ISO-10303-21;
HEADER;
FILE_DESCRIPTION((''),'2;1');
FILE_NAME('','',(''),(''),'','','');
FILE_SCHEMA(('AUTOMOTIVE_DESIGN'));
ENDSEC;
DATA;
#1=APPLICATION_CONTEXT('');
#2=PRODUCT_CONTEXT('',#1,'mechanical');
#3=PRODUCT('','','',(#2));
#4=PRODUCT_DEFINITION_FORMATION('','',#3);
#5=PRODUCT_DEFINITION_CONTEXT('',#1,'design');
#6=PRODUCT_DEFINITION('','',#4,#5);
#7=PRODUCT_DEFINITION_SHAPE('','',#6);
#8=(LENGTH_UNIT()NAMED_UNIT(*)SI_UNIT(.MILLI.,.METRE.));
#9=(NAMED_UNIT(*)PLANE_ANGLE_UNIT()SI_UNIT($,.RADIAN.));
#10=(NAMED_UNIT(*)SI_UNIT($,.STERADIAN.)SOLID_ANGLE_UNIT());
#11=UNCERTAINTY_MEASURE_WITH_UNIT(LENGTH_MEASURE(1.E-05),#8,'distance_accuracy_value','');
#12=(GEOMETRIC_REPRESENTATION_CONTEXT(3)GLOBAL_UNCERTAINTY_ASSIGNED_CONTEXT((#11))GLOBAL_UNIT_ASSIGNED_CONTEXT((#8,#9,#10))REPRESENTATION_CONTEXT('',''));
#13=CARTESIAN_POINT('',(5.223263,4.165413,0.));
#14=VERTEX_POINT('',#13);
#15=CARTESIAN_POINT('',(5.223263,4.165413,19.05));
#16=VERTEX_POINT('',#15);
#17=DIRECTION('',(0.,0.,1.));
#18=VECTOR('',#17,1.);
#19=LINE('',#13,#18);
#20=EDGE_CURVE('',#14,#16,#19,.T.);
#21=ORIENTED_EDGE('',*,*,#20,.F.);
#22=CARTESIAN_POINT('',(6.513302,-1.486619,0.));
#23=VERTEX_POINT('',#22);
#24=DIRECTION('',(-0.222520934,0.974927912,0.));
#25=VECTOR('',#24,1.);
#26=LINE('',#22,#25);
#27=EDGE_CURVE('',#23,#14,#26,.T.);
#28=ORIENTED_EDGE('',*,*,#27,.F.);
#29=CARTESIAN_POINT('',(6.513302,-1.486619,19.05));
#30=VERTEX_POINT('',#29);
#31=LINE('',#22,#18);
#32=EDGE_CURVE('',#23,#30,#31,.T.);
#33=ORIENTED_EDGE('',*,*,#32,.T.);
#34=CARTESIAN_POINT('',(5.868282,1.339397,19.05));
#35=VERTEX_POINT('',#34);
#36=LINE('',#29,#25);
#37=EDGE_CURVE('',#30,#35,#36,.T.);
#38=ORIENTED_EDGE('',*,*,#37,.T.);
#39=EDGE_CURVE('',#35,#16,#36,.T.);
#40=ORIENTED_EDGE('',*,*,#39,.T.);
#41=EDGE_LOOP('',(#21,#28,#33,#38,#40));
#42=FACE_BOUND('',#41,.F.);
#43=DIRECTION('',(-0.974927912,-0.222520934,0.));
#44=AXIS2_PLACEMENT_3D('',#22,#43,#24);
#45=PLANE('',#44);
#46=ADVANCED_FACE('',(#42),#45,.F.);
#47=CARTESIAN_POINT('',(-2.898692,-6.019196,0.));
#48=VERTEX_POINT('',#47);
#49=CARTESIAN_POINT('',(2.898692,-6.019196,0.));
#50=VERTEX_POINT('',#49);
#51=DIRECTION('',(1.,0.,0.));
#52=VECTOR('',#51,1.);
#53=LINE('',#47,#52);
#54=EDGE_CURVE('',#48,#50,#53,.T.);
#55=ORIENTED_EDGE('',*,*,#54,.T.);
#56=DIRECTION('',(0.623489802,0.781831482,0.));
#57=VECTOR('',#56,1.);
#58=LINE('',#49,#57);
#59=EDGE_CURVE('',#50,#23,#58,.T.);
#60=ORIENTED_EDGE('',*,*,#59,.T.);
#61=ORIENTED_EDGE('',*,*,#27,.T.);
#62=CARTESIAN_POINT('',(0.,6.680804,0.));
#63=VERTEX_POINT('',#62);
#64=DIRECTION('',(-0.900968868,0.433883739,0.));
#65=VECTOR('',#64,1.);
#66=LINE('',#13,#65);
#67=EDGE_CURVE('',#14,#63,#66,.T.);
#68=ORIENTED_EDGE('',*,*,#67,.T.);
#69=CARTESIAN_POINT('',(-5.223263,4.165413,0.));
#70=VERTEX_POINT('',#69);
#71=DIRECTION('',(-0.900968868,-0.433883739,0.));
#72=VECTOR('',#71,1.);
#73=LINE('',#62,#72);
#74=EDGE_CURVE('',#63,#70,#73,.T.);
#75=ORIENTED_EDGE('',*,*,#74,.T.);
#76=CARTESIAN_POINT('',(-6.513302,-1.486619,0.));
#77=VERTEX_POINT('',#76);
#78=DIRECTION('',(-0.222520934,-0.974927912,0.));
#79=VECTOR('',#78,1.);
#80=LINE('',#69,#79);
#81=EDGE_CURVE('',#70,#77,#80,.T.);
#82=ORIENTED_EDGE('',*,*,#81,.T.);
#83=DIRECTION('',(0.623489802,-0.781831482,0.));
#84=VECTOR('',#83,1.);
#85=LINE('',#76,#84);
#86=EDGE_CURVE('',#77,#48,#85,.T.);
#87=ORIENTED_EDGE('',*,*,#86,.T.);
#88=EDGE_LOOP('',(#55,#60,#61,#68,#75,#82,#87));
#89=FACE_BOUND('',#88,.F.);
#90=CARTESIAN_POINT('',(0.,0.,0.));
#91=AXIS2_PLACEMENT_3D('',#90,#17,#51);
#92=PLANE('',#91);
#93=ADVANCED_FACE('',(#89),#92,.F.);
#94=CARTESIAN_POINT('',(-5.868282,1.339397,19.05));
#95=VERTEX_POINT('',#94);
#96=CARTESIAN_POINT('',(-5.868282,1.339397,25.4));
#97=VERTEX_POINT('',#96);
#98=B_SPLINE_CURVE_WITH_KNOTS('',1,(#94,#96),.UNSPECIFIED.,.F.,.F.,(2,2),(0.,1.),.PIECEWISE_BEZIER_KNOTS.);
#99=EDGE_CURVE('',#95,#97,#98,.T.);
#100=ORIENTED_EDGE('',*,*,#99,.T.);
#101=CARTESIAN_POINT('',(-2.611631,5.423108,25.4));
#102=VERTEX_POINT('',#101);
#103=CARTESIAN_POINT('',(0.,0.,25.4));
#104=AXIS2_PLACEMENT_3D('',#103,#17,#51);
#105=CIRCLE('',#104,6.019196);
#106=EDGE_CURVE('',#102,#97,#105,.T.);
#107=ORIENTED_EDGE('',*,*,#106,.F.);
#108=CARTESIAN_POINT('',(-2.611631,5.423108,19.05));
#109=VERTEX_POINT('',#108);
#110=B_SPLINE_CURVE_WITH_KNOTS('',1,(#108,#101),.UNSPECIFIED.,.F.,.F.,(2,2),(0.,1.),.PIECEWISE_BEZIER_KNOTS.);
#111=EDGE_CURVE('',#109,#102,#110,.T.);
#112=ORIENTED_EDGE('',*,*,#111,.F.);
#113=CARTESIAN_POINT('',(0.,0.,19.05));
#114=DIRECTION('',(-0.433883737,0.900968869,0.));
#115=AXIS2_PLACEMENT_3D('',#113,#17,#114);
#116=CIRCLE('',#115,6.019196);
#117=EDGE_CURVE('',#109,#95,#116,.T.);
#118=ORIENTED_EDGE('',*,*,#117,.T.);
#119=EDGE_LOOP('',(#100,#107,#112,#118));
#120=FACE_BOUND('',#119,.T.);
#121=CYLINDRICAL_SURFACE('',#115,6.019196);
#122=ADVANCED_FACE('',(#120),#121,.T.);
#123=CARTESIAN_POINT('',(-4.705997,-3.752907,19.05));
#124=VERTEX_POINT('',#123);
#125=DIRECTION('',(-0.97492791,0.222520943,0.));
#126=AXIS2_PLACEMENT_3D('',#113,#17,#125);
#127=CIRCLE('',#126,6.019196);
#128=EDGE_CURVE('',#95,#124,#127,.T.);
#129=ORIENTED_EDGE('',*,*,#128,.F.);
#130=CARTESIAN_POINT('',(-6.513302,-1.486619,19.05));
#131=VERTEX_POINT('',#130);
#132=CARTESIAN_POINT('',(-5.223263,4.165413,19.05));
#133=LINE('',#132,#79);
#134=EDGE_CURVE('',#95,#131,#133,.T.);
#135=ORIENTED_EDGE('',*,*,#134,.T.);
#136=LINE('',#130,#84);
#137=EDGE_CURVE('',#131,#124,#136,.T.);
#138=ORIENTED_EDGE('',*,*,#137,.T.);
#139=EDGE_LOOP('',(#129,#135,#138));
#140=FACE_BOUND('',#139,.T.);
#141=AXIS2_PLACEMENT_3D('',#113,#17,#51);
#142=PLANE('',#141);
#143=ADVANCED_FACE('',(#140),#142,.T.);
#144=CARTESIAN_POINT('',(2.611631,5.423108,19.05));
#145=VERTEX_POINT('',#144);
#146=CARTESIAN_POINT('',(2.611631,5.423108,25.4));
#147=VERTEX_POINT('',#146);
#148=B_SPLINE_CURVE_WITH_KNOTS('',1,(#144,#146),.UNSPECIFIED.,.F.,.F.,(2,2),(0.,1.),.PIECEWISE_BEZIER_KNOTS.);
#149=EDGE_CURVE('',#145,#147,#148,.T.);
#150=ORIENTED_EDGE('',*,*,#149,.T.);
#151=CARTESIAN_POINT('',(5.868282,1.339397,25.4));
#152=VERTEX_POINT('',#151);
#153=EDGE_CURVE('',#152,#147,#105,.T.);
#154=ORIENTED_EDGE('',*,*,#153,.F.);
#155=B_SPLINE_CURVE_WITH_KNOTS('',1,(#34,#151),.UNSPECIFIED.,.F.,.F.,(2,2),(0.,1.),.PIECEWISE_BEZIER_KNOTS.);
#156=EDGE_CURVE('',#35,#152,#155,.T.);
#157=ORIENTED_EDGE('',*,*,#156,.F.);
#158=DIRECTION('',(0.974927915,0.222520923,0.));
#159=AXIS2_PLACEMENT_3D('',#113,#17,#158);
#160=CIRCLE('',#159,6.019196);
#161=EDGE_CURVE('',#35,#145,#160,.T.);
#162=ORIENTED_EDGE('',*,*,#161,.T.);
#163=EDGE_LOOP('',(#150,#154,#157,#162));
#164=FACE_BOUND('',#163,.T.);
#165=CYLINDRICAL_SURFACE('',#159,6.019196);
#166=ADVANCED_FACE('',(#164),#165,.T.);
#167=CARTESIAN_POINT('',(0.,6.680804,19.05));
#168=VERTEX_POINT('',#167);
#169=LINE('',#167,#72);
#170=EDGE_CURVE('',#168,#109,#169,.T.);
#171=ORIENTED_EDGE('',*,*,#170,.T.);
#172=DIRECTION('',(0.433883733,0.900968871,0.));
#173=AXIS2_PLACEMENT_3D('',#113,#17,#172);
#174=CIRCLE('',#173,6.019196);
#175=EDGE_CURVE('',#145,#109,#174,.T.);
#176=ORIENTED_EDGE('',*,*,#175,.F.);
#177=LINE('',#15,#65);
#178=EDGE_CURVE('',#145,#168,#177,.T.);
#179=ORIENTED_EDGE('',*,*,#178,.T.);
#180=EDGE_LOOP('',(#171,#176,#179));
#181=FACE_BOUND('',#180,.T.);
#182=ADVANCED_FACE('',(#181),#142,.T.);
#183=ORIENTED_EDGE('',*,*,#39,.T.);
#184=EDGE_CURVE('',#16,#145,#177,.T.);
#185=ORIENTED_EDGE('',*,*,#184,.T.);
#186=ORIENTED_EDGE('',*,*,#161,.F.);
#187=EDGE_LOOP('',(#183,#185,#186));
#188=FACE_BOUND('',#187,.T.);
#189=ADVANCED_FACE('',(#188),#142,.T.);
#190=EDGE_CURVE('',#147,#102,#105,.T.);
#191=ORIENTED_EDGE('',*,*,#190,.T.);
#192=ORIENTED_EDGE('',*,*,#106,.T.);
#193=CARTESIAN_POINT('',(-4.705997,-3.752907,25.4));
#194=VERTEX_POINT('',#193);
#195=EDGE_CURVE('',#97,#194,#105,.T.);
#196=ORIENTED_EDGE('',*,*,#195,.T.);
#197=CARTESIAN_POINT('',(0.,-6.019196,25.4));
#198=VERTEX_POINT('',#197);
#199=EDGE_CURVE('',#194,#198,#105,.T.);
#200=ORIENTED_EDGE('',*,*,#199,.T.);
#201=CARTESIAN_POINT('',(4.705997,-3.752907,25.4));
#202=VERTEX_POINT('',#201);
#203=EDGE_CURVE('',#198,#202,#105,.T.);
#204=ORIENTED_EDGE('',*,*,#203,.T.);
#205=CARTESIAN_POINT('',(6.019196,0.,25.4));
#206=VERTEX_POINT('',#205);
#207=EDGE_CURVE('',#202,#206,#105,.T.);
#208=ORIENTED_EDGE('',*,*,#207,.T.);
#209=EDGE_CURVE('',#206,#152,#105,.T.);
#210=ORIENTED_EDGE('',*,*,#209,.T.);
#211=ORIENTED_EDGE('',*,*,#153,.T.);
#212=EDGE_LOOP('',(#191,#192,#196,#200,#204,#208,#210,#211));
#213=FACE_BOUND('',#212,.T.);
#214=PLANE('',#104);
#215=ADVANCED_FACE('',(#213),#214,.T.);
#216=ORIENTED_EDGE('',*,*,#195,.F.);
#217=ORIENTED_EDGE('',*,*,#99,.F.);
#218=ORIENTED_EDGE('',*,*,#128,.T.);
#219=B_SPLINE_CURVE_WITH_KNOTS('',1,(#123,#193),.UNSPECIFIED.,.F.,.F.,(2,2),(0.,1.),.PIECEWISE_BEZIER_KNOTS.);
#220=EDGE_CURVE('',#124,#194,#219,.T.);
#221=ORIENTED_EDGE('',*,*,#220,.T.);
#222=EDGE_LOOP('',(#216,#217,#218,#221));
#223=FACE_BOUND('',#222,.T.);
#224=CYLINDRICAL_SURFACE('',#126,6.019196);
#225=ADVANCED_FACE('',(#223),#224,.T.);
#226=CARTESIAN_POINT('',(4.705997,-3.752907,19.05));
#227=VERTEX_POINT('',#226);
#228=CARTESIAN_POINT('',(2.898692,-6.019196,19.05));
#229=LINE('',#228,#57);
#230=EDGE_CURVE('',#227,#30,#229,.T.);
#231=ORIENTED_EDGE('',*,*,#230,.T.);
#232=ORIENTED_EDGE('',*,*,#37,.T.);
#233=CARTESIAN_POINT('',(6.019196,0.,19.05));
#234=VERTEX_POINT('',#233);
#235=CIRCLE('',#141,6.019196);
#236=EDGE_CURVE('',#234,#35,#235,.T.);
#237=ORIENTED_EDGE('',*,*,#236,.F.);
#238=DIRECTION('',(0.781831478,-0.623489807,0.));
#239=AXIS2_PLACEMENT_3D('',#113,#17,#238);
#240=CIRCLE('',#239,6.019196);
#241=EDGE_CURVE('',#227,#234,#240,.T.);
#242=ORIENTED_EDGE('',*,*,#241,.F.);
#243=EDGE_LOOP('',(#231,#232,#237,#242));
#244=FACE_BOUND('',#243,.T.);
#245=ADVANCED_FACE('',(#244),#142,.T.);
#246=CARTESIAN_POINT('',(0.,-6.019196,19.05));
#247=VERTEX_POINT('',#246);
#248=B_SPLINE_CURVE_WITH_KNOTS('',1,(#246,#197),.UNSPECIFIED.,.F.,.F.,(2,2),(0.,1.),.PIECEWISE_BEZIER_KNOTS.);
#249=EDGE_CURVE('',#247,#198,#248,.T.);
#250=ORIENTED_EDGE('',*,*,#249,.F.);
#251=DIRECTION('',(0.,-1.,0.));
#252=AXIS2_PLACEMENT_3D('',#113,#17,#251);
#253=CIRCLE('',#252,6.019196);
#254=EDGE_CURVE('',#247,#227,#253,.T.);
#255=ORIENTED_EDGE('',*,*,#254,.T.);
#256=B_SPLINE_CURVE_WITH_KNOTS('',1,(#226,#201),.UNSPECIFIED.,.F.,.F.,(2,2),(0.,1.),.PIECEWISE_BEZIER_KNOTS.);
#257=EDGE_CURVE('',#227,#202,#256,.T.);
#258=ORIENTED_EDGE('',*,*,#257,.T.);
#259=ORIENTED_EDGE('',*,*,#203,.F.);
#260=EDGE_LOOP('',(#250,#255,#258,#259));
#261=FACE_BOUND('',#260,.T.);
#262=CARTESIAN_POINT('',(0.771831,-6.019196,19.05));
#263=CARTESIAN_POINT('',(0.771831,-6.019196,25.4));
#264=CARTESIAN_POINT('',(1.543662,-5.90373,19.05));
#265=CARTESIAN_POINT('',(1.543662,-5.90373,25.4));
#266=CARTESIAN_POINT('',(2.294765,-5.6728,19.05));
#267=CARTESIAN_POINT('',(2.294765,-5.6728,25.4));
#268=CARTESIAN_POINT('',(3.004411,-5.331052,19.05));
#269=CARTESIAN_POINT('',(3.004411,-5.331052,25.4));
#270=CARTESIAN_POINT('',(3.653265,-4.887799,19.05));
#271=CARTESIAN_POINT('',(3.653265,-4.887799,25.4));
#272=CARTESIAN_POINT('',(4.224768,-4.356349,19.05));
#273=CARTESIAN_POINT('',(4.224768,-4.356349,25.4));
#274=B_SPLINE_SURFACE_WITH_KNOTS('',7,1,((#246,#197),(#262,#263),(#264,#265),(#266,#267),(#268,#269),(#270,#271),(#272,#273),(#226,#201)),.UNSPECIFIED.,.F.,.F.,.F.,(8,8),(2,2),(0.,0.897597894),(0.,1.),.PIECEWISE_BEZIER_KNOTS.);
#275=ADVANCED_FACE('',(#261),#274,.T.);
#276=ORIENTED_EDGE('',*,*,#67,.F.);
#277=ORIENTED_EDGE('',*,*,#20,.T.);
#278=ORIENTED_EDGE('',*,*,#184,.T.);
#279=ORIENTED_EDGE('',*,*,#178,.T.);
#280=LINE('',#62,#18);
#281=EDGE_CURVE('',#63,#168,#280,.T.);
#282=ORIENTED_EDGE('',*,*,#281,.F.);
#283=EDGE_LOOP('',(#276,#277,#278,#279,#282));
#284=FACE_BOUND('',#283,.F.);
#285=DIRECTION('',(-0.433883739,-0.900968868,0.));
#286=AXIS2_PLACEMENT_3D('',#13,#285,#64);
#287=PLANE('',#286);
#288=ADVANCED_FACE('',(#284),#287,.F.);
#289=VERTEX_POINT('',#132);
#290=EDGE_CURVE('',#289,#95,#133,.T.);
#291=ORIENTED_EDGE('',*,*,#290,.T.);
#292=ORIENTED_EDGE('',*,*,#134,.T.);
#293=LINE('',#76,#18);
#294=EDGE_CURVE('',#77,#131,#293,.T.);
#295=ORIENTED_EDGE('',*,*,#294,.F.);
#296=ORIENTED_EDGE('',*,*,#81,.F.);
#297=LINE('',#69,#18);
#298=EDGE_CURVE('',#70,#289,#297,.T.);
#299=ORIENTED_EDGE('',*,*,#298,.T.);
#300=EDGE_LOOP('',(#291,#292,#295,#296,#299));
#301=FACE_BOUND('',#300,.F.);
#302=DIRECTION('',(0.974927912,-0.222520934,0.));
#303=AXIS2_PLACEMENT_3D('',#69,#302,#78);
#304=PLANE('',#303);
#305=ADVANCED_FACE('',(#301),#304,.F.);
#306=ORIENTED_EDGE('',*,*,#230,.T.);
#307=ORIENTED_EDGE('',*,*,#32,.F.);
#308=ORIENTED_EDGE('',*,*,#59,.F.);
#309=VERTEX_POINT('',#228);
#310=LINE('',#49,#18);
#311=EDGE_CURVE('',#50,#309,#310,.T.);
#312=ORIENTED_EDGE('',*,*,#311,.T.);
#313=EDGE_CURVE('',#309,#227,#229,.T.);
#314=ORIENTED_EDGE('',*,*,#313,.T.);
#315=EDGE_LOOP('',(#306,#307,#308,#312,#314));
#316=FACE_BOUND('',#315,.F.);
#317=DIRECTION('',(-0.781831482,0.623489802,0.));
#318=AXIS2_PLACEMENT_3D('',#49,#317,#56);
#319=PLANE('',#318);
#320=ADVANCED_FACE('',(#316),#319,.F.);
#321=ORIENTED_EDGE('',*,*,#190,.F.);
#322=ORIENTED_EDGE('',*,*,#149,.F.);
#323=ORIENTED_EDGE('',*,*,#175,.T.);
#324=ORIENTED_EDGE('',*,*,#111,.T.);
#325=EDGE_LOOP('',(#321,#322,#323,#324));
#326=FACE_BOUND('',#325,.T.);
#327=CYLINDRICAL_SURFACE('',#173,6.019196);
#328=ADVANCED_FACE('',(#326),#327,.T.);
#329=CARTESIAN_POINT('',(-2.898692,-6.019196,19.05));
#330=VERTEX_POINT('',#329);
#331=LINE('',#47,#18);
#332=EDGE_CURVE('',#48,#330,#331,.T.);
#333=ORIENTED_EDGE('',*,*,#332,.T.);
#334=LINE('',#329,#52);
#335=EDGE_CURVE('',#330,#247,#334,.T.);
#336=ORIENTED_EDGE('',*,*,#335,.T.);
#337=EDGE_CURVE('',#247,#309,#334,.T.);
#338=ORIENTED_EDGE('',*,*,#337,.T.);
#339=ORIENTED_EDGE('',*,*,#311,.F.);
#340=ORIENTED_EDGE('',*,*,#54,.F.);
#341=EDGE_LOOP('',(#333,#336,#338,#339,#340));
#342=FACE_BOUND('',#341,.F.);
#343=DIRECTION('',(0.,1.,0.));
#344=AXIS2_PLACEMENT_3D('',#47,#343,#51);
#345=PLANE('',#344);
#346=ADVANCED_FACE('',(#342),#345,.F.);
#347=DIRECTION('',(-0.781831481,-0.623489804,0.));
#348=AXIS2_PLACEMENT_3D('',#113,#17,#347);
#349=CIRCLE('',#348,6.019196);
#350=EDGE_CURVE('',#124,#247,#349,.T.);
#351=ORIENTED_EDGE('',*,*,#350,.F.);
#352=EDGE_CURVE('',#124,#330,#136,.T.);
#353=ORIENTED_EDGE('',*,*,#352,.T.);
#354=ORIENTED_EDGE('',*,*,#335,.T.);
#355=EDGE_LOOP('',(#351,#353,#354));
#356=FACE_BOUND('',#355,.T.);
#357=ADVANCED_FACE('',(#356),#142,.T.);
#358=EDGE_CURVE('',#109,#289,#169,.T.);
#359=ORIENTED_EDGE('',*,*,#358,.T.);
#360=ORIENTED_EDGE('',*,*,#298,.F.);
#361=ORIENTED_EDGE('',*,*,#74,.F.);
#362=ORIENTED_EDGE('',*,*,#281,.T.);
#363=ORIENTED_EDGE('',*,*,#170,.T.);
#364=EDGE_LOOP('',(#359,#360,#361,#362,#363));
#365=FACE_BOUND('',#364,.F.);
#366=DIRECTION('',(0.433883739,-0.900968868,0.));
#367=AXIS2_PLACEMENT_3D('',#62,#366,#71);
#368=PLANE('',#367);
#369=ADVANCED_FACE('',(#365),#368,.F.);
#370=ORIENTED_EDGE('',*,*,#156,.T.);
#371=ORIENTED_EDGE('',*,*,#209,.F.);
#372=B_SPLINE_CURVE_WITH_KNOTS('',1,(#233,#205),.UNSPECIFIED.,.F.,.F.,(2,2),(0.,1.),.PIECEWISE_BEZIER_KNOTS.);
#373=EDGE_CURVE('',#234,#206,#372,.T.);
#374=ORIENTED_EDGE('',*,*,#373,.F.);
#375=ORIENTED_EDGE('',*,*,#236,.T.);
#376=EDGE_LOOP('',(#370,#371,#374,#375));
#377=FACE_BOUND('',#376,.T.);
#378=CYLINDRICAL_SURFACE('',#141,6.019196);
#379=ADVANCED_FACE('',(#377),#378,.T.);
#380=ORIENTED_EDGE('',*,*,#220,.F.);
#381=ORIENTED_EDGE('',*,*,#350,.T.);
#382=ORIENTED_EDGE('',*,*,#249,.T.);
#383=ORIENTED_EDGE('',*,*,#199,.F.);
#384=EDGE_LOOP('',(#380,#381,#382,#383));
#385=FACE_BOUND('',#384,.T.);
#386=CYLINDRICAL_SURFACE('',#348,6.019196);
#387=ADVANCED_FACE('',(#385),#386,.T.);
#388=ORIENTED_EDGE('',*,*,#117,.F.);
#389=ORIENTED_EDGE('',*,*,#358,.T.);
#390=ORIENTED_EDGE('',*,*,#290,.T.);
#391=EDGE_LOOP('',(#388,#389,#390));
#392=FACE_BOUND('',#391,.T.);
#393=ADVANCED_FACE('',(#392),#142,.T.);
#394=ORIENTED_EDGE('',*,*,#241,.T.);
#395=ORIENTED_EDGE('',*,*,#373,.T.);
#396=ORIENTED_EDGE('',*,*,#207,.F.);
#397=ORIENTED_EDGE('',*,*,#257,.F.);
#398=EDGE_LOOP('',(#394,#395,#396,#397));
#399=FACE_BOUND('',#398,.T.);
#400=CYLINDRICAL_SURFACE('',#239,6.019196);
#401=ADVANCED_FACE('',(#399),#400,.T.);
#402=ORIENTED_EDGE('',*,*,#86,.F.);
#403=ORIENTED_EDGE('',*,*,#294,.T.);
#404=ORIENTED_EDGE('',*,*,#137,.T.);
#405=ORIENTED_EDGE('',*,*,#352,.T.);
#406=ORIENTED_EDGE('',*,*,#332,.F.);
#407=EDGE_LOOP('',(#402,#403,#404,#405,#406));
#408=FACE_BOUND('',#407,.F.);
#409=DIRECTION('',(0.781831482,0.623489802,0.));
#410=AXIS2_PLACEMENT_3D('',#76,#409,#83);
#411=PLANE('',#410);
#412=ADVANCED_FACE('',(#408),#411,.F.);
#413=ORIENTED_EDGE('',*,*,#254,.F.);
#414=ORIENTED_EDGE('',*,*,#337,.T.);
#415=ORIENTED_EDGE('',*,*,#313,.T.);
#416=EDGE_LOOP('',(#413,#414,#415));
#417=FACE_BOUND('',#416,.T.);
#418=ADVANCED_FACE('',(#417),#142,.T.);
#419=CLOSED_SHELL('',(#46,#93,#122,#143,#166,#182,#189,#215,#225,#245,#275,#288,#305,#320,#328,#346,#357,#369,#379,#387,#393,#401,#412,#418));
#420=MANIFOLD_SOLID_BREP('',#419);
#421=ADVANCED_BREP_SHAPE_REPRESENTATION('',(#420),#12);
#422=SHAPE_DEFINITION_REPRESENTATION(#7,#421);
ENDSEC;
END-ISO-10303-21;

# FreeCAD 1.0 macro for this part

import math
import FreeCAD as App
import Part
import Sketcher
Q = App.Units.Quantity

doc = App.newDocument("Part")
body = doc.addObject("PartDesign::Body", "Body")

# Sketch on XY plane
sketch1 = body.newObject("Sketcher::SketchObject", "Sketch")
sketch1.AttachmentSupport = (doc.getObject("XY_Plane"), [""])
sketch1.MapMode = "FlatFace"
sketch1.addGeometry([
    Part.LineSegment(App.Vector(5, 4, 0), App.Vector(0, 7, 0)),  # 0
    Part.LineSegment(App.Vector(0, 7, 0), App.Vector(-5, 4, 0)),  # 1
    Part.LineSegment(App.Vector(-5, 4, 0), App.Vector(-7, -1, 0)),  # 2
    Part.LineSegment(App.Vector(-7, -1, 0), App.Vector(-3, -6, 0)),  # 3
    Part.LineSegment(App.Vector(-3, -6, 0), App.Vector(3, -6, 0)),  # 4
    Part.LineSegment(App.Vector(3, -6, 0), App.Vector(7, -1, 0)),  # 5
    Part.LineSegment(App.Vector(7, -1, 0), App.Vector(5, 4, 0)),  # 6
], False)
sketch1.addConstraint([
    Sketcher.Constraint("Coincident", 0, 2, 1, 1),
    Sketcher.Constraint("Coincident", 1, 2, 2, 1),
    Sketcher.Constraint("Coincident", 2, 2, 3, 1),
    Sketcher.Constraint("Coincident", 3, 2, 4, 1),
    Sketcher.Constraint("Coincident", 4, 2, 5, 1),
    Sketcher.Constraint("Coincident", 5, 2, 6, 1),
    Sketcher.Constraint("Coincident", 6, 2, 0, 1),
    Sketcher.Constraint("Horizontal", 4),
    Sketcher.Constraint("Symmetric", 2, 2, 5, 2, -2),
    Sketcher.Constraint("Symmetric", 1, 2, 6, 2, -2),
    Sketcher.Constraint("PointOnObject", 0, 2, -2),
    Sketcher.Constraint("Equal", 1, 2),
    Sketcher.Constraint("Equal", 2, 3),
    Sketcher.Constraint("Equal", 3, 5),
    Sketcher.Constraint("DistanceY", 3, 2, 0, 2, Q("0.5 in")),
    Sketcher.Constraint("DistanceX", 4, 1, 4, 2, Q("5.797384 mm")),
    Sketcher.Constraint("DistanceY", 2, 2, -1, 1, Q("1.486619 mm")),
    Sketcher.Constraint("DistanceY", 1, 2, 0, 2, Q("2.515391 mm")),
    Sketcher.Constraint("DistanceX", 2, 2, 1, 2, Q("1.290039 mm")),
])
pad1 = body.newObject("PartDesign::Pad", "Pad")
pad1.Profile = sketch1
pad1.Length = Q("0.75 in")

# Sketch on XY plane
sketch2 = body.newObject("Sketcher::SketchObject", "Sketch001")
sketch2.AttachmentSupport = (doc.getObject("XY_Plane"), [""])
sketch2.MapMode = "FlatFace"
sketch2.AttachmentOffset = App.Placement(App.Vector(0, 0, 0.75 * 25.4), App.Rotation())
sketch2.addGeometry([
    Part.ArcOfCircle(Part.Circle(App.Vector(0, 0, 0), App.Vector(0, 0, 1), 6), math.radians(-39), math.radians(0)),  # 0
    Part.ArcOfCircle(Part.Circle(App.Vector(0, 0, 0), App.Vector(0, 0, 1), 6), math.radians(0), math.radians(12.86)),  # 1
    Part.ArcOfCircle(Part.Circle(App.Vector(0, 0, 0), App.Vector(0, 0, 1), 6), math.radians(13), math.radians(64)),  # 2
    Part.ArcOfCircle(Part.Circle(App.Vector(0, 0, 0), App.Vector(0, 0, 1), 6), math.radians(64), math.radians(116)),  # 3
    Part.ArcOfCircle(Part.Circle(App.Vector(0, 0, 0), App.Vector(0, 0, 1), 6), math.radians(116), math.radians(167)),  # 4
    Part.ArcOfCircle(Part.Circle(App.Vector(0, 0, 0), App.Vector(0, 0, 1), 6), math.radians(167), math.radians(219)),  # 5
    Part.ArcOfCircle(Part.Circle(App.Vector(0, 0, 0), App.Vector(0, 0, 1), 6), math.radians(-141), math.radians(-90)),  # 6
    Part.ArcOfCircle(Part.Circle(App.Vector(0, 0, 0), App.Vector(0, 0, 1), 6), math.radians(-90), math.radians(-39)),  # 7
], False)
sketch2.addConstraint([
    Sketcher.Constraint("Tangent", 0, 2, 1, 1),
    Sketcher.Constraint("Tangent", 1, 2, 2, 1),
    Sketcher.Constraint("Tangent", 2, 2, 3, 1),
    Sketcher.Constraint("Tangent", 3, 2, 4, 1),
    Sketcher.Constraint("Tangent", 4, 2, 5, 1),
    Sketcher.Constraint("Tangent", 5, 2, 6, 1),
    Sketcher.Constraint("Tangent", 6, 2, 7, 1),
    Sketcher.Constraint("Tangent", 7, 2, 0, 1),
    Sketcher.Constraint("Coincident", 0, 3, -1, 1),
    Sketcher.Constraint("Coincident", 2, 3, -1, 1),
    Sketcher.Constraint("Coincident", 4, 3, -1, 1),
    Sketcher.Constraint("Equal", 4, 5),
    Sketcher.Constraint("PointOnObject", 0, 2, -1),
    Sketcher.Constraint("PointOnObject", 6, 2, -2),
    Sketcher.Constraint("Horizontal", 2, 2, 3, 2),
    Sketcher.Constraint("Horizontal", 1, 2, 4, 2),
    Sketcher.Constraint("Horizontal", 5, 2, 7, 2),
    Sketcher.Constraint("Radius", 0, Q("6.019196 mm")),
    Sketcher.Constraint("DistanceX", 7, 2, 0, 2, Q("1.313199 mm")),
    Sketcher.Constraint("DistanceX", -1, 1, 2, 2, Q("2.611631 mm")),
    Sketcher.Constraint("DistanceX", 2, 2, 1, 2, Q("3.256651 mm")),
])

# Sketch on XY plane
sketch3 = body.newObject("Sketcher::SketchObject", "Sketch002")
sketch3.AttachmentSupport = (doc.getObject("XY_Plane"), [""])
sketch3.MapMode = "FlatFace"
sketch3.AttachmentOffset = App.Placement(App.Vector(0, 0, 1 * 25.4), App.Rotation())
sketch3.addGeometry(Part.Circle(App.Vector(0, 0, 0), App.Vector(0, 0, 1), 6), False)
sketch3.addConstraint([
    Sketcher.Constraint("Coincident", 0, 3, -1, 1),
    Sketcher.Constraint("Diameter", 0, Q("12.038392 mm")),
])

additiveloft = body.newObject("PartDesign::AdditiveLoft", "AdditiveLoft")
additiveloft.Profile = sketch2
additiveloft.Sections = [sketch3]

doc.recompute()
